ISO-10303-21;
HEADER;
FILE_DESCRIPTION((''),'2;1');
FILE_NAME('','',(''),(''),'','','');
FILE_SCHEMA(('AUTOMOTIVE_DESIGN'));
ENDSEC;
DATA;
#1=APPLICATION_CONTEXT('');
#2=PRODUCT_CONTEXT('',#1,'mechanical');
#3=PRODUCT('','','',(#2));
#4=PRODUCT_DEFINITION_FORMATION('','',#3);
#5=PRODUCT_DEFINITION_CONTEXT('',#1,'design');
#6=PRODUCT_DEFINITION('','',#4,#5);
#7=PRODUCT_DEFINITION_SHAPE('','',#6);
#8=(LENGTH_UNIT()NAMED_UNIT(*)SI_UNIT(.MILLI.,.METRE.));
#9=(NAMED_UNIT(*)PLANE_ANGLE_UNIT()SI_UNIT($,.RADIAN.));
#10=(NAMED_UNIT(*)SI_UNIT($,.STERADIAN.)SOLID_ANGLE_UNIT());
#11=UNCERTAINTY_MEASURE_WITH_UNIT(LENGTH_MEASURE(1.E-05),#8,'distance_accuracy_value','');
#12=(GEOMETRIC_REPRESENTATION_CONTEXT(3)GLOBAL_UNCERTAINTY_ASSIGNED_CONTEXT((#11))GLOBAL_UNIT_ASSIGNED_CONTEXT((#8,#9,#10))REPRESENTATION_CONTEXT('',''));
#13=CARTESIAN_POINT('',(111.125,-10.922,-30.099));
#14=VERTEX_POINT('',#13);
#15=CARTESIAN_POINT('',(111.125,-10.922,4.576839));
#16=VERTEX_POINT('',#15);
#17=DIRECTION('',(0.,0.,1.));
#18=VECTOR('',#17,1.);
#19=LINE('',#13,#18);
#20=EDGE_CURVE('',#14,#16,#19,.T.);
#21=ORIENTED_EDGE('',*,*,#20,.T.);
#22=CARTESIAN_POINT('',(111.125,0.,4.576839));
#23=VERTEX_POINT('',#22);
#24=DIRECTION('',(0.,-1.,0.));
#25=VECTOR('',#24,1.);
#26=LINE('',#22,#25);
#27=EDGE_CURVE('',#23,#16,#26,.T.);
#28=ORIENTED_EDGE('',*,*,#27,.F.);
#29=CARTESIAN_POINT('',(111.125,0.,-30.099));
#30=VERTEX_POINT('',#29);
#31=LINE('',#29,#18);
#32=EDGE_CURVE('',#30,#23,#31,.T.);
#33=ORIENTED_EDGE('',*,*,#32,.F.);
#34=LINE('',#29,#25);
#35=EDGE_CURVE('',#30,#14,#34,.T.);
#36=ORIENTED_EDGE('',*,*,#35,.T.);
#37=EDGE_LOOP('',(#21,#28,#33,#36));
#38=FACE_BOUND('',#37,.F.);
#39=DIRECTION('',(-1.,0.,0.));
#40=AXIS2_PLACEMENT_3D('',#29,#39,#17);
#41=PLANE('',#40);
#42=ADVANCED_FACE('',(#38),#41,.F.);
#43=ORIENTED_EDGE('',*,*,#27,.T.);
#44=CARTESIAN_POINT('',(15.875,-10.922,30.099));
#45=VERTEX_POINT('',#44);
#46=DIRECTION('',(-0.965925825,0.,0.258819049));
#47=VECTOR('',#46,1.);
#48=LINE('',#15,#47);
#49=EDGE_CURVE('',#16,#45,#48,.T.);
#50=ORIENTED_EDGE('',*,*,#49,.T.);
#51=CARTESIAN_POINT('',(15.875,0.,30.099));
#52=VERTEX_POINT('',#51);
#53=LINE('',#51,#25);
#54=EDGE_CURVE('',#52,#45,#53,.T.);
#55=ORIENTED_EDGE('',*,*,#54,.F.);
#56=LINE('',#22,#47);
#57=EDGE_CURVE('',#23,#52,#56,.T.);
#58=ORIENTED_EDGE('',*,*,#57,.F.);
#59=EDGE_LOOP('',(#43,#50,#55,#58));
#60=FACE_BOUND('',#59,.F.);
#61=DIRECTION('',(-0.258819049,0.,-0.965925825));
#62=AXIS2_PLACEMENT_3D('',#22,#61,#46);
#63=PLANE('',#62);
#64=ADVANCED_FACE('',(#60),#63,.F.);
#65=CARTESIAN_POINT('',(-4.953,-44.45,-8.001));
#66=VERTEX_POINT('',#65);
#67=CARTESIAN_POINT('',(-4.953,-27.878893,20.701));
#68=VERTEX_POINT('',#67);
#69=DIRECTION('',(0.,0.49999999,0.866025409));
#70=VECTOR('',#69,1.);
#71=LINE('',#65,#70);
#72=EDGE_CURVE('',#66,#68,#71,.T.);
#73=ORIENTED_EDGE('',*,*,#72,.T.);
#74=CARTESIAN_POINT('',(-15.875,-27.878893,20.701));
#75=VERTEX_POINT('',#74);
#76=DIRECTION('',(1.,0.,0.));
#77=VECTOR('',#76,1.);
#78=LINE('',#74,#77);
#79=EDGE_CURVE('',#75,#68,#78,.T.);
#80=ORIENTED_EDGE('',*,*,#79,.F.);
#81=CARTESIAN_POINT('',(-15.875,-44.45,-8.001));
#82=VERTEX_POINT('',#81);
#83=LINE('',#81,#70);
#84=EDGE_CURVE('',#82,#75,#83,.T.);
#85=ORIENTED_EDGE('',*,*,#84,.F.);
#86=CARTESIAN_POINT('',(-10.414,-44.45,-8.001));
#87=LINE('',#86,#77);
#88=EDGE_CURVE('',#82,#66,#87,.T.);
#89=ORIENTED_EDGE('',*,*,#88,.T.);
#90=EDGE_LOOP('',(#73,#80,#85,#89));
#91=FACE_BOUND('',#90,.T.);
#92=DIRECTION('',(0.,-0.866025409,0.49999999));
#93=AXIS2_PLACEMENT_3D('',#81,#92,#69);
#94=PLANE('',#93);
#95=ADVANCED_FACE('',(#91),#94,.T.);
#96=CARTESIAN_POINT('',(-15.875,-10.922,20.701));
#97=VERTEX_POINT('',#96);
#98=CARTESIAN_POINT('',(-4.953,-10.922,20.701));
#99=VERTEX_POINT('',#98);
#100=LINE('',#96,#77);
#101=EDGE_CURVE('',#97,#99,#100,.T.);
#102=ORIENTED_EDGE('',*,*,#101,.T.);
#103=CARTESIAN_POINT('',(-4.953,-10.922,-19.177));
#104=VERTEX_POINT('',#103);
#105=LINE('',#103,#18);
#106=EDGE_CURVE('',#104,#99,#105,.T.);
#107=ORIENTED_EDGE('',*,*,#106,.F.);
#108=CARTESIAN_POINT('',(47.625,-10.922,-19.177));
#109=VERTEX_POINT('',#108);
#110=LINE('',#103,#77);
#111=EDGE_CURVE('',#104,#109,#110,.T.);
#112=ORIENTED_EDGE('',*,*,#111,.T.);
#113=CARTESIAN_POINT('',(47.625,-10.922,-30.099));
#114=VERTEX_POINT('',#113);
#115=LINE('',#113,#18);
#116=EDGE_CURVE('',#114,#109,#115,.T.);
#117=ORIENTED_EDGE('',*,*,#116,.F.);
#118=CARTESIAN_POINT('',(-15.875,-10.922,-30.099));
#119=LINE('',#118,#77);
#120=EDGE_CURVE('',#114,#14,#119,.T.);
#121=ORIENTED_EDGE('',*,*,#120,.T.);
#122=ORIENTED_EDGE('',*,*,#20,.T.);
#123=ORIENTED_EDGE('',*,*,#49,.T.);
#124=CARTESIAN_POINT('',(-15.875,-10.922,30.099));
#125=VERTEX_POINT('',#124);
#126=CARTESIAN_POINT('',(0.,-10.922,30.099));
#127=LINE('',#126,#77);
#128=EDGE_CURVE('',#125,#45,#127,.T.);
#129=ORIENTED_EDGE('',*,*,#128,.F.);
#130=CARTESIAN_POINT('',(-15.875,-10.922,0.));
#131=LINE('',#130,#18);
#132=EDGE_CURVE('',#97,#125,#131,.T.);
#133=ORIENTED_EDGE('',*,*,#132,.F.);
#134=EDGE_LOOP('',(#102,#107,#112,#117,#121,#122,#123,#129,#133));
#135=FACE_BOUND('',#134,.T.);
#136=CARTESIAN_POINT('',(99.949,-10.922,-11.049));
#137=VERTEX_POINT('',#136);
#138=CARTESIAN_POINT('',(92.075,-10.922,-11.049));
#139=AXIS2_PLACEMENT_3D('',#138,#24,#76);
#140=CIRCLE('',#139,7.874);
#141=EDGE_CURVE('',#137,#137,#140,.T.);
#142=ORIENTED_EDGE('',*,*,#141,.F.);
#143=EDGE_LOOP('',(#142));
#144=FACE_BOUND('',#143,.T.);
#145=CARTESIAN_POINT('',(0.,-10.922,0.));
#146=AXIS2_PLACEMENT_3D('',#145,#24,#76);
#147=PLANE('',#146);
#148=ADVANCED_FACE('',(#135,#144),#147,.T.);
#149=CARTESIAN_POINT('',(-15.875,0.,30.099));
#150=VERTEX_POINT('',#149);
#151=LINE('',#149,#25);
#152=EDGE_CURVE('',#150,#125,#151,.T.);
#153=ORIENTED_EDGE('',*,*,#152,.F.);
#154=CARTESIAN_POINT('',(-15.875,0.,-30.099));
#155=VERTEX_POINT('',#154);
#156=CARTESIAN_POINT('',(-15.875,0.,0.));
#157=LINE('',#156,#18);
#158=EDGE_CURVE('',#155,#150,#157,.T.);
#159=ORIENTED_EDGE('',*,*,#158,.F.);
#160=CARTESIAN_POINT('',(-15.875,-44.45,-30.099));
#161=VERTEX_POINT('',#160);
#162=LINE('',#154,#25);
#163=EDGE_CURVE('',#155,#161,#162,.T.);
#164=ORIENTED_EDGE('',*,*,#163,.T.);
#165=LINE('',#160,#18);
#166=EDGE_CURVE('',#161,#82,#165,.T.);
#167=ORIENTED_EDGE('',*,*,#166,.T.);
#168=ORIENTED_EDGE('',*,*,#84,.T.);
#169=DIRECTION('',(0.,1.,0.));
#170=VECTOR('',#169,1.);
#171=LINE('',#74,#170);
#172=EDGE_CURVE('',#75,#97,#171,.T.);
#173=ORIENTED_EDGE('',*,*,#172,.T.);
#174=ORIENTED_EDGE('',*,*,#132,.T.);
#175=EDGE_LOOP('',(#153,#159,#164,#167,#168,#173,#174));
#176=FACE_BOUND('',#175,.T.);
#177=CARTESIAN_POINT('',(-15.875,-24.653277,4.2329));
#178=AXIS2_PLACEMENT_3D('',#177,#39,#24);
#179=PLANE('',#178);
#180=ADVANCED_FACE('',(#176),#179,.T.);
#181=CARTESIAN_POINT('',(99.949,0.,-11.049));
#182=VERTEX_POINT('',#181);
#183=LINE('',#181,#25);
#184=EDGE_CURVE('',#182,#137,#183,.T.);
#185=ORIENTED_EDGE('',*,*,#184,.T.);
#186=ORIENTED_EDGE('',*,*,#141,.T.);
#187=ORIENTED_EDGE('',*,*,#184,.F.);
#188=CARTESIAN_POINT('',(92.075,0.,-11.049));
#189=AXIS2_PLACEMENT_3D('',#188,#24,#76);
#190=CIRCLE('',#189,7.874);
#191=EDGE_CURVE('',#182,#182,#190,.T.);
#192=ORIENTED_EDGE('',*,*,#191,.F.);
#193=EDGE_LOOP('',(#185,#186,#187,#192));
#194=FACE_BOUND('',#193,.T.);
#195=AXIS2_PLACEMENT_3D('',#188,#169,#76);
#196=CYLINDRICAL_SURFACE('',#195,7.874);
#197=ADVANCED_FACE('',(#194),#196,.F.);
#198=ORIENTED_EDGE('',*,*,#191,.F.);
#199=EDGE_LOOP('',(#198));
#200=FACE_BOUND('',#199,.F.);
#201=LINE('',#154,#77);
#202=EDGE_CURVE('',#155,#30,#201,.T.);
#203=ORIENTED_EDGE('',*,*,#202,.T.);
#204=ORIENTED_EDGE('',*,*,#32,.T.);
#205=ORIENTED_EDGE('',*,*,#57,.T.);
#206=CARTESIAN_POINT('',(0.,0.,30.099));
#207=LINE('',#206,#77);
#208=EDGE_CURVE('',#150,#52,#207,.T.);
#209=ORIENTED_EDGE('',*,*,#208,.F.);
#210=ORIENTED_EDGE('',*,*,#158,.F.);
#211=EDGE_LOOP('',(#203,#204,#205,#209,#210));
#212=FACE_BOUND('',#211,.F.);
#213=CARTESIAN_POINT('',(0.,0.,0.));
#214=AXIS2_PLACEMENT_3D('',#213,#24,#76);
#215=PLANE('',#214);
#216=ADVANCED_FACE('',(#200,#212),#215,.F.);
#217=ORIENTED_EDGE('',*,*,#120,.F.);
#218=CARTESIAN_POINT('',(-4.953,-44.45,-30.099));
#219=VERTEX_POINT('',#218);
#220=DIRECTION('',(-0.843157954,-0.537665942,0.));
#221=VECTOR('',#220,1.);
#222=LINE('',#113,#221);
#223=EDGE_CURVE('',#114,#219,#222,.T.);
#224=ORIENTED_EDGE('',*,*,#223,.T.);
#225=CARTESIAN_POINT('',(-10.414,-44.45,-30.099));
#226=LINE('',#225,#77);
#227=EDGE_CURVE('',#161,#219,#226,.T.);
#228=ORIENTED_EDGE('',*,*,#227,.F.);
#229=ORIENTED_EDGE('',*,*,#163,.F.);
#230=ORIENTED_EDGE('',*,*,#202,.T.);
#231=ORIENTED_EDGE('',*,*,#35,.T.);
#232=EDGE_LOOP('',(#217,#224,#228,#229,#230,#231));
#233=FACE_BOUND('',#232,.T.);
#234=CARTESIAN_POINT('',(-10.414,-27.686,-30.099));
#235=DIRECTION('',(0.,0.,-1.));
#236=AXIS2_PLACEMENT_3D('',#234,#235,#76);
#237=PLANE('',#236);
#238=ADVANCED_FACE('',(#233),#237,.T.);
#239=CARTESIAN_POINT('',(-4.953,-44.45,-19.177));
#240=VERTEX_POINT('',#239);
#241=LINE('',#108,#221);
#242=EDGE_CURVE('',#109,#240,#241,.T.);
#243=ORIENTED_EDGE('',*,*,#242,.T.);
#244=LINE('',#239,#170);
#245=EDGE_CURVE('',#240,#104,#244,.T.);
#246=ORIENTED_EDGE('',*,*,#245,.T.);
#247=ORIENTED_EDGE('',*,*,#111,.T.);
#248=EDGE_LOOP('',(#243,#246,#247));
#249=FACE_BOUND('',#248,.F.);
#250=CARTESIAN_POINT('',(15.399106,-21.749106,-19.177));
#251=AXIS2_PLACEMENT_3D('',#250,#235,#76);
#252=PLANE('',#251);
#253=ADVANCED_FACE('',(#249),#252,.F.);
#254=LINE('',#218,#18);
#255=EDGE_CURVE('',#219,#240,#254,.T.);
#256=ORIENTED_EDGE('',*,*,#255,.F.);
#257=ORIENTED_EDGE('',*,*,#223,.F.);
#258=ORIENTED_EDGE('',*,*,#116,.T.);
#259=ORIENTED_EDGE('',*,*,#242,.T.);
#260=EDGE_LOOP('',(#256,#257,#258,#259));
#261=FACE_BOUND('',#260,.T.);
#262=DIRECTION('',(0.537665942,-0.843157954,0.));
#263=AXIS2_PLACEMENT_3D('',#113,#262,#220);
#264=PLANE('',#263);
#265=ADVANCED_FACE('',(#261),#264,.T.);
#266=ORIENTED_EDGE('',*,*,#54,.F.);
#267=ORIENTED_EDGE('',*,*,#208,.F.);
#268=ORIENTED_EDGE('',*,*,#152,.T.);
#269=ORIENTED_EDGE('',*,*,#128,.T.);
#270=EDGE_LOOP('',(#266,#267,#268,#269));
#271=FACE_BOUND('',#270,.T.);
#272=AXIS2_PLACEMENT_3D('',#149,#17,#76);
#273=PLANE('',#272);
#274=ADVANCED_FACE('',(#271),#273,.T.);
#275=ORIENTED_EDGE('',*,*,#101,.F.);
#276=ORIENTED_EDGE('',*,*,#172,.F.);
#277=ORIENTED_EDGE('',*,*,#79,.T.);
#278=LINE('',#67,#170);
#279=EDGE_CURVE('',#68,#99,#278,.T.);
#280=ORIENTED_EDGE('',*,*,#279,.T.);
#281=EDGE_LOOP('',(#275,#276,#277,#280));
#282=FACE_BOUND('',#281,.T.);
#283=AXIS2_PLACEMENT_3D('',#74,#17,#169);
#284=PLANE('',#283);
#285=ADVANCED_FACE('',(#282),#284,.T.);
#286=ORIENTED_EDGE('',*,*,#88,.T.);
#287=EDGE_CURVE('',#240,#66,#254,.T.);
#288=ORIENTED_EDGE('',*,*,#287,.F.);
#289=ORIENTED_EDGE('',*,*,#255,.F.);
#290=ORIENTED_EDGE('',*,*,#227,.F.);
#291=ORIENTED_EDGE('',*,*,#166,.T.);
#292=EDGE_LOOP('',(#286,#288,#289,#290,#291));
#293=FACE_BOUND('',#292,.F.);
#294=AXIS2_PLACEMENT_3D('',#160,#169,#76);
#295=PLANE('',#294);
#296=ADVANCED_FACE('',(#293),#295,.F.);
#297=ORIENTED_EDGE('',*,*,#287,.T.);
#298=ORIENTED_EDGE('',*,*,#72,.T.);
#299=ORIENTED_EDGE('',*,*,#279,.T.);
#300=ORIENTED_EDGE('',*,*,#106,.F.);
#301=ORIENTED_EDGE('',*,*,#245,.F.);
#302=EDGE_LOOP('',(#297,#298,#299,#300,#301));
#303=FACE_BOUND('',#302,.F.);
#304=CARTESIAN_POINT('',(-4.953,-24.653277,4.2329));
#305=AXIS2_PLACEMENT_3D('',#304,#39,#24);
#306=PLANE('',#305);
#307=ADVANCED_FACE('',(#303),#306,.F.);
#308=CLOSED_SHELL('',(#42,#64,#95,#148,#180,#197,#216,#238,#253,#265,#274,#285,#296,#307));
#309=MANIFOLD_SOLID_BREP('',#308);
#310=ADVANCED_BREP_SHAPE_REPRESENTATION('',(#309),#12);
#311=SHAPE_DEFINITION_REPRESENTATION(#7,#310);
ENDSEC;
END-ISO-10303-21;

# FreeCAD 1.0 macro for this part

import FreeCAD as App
import Part
import Sketcher
from FreeCAD import Vector
Q = App.Units.Quantity

doc = App.newDocument("Part")
body = doc.addObject("PartDesign::Body", "Body")

sketch1 = doc.addObject("Sketcher::SketchObject", "Sketch")
body.addObject(sketch1)
sketch1.AttachmentSupport = (doc.XZ_Plane, [""])
sketch1.MapMode = "FlatFace"
sketch1.addGeometry(Part.LineSegment(Vector(-16, 30, 0), Vector(-16, -30, 0)), False)
sketch1.addGeometry(Part.LineSegment(Vector(-16, -30, 0), Vector(111, -30, 0)), False)
sketch1.addGeometry(Part.LineSegment(Vector(111, -30, 0), Vector(111, 5, 0)), False)
sketch1.addGeometry(Part.LineSegment(Vector(111, 5, 0), Vector(16, 30, 0)), False)
sketch1.addGeometry(Part.LineSegment(Vector(16, 30, 0), Vector(-16, 30, 0)), False)
sketch1.addGeometry(Part.Circle(Vector(92, -11, 0), Vector(0, 0, 1), 8), False)
sketch1.addConstraint(Sketcher.Constraint("Coincident", 0, 2, 1, 1))
sketch1.addConstraint(Sketcher.Constraint("Coincident", 1, 2, 2, 1))
sketch1.addConstraint(Sketcher.Constraint("Coincident", 2, 2, 3, 1))
sketch1.addConstraint(Sketcher.Constraint("Coincident", 3, 2, 4, 1))
sketch1.addConstraint(Sketcher.Constraint("Coincident", 4, 2, 0, 1))
sketch1.addConstraint(Sketcher.Constraint("Vertical", 0))
sketch1.addConstraint(Sketcher.Constraint("Horizontal", 1))
sketch1.addConstraint(Sketcher.Constraint("Vertical", 2))
sketch1.addConstraint(Sketcher.Constraint("Horizontal", 4))
sketch1.addConstraint(Sketcher.Constraint("Symmetric", 0, 2, 3, 2, -1, 1))
sketch1.addConstraint(Sketcher.Constraint("Diameter", 5, Q("0.62 in")))
sketch1.addConstraint(Sketcher.Constraint("DistanceX", 1, 1, 1, 2, Q("5 in")))
sketch1.addConstraint(Sketcher.Constraint("Angle", 3, Q("165 deg")))
sketch1.addConstraint(Sketcher.Constraint("DistanceX", 3, 2, 5, 3, Q("3 in")))
sketch1.addConstraint(Sketcher.Constraint("DistanceX", 4, 2, 4, 1, Q("1.25 in")))
sketch1.addConstraint(Sketcher.Constraint("DistanceY", 0, 2, 0, 1, Q("2.37 in")))
sketch1.addConstraint(Sketcher.Constraint("DistanceY", 0, 2, 5, 3, Q("0.75 in")))
pad1 = doc.addObject("PartDesign::Pad", "Pad")
body.addObject(pad1)
pad1.Profile = sketch1
pad1.Length = Q("0.43 in")

sketch2 = doc.addObject("Sketcher::SketchObject", "Sketch001")
body.addObject(sketch2)
sketch2.AttachmentSupport = (doc.XY_Plane, [""])
sketch2.MapMode = "FlatFace"
sketch2.AttachmentOffset = App.Placement(Vector(0, 0, -1.185 * 25.4), App.Rotation())
sketch2.addGeometry(Part.LineSegment(Vector(-5, -44, 0), Vector(-5, -11, 0)), False)
sketch2.addGeometry(Part.LineSegment(Vector(-5, -11, 0), Vector(48, -11, 0)), False)
sketch2.addGeometry(Part.LineSegment(Vector(48, -11, 0), Vector(-5, -44, 0)), False)
sketch2.addConstraint(Sketcher.Constraint("Coincident", 0, 2, 1, 1))
sketch2.addConstraint(Sketcher.Constraint("Coincident", 1, 2, 2, 1))
sketch2.addConstraint(Sketcher.Constraint("Coincident", 2, 2, 0, 1))
sketch2.addConstraint(Sketcher.Constraint("Vertical", 0))
sketch2.addConstraint(Sketcher.Constraint("Horizontal", 1))
sketch2.addConstraint(Sketcher.Constraint("DistanceX", 1, 1, 1, 2, Q("2.07 in")))
sketch2.addConstraint(Sketcher.Constraint("DistanceY", 0, 1, 0, 2, Q("1.32 in")))
sketch2.addConstraint(Sketcher.Constraint("DistanceY", 0, 2, -1, 1, Q("0.43 in")))
sketch2.addConstraint(Sketcher.Constraint("DistanceX", 0, 2, -1, 1, Q("0.195 in")))
pad2 = doc.addObject("PartDesign::Pad", "Pad001")
body.addObject(pad2)
pad2.Profile = sketch2
pad2.Length = Q("0.43 in")

sketch3 = doc.addObject("Sketcher::SketchObject", "Sketch002")
body.addObject(sketch3)
sketch3.AttachmentSupport = (doc.XY_Plane, [""])
sketch3.MapMode = "FlatFace"
sketch3.AttachmentOffset = App.Placement(Vector(0, 0, -1.185 * 25.4), App.Rotation())
sketch3.addGeometry(Part.LineSegment(Vector(-16, -44, 0), Vector(-16, -11, 0)), False)
sketch3.addGeometry(Part.LineSegment(Vector(-16, -11, 0), Vector(-5, -11, 0)), False)
sketch3.addGeometry(Part.LineSegment(Vector(-5, -11, 0), Vector(-5, -44, 0)), False)
sketch3.addGeometry(Part.LineSegment(Vector(-5, -44, 0), Vector(-16, -44, 0)), False)
sketch3.addConstraint(Sketcher.Constraint("Coincident", 0, 2, 1, 1))
sketch3.addConstraint(Sketcher.Constraint("Coincident", 1, 2, 2, 1))
sketch3.addConstraint(Sketcher.Constraint("Coincident", 2, 2, 3, 1))
sketch3.addConstraint(Sketcher.Constraint("Coincident", 3, 2, 0, 1))
sketch3.addConstraint(Sketcher.Constraint("Vertical", 0))
sketch3.addConstraint(Sketcher.Constraint("Horizontal", 1))
sketch3.addConstraint(Sketcher.Constraint("Vertical", 2))
sketch3.addConstraint(Sketcher.Constraint("Horizontal", 3))
sketch3.addConstraint(Sketcher.Constraint("DistanceX", 1, 1, 1, 2, Q("0.43 in")))
sketch3.addConstraint(Sketcher.Constraint("DistanceY", 0, 1, 0, 2, Q("1.32 in")))
sketch3.addConstraint(Sketcher.Constraint("DistanceY", 0, 2, -1, 1, Q("0.43 in")))
sketch3.addConstraint(Sketcher.Constraint("DistanceX", 0, 2, -1, 1, Q("0.625 in")))
pad3 = doc.addObject("PartDesign::Pad", "Pad002")
body.addObject(pad3)
pad3.Profile = sketch3
pad3.Length = Q("0.87 in")

sketch4 = doc.addObject("Sketcher::SketchObject", "Sketch003")
body.addObject(sketch4)
sketch4.AttachmentSupport = (doc.YZ_Plane, [""])
sketch4.MapMode = "FlatFace"
sketch4.AttachmentOffset = App.Placement(Vector(0, 0, -0.625 * 25.4), App.Rotation())
sketch4.addGeometry(Part.LineSegment(Vector(-11, -8, 0), Vector(-44, -8, 0)), False)
sketch4.addGeometry(Part.LineSegment(Vector(-44, -8, 0), Vector(-28, 21, 0)), False)
sketch4.addGeometry(Part.LineSegment(Vector(-28, 21, 0), Vector(-11, 21, 0)), False)
sketch4.addGeometry(Part.LineSegment(Vector(-11, 21, 0), Vector(-11, -8, 0)), False)
sketch4.addConstraint(Sketcher.Constraint("Coincident", 0, 2, 1, 1))
sketch4.addConstraint(Sketcher.Constraint("Coincident", 1, 2, 2, 1))
sketch4.addConstraint(Sketcher.Constraint("Coincident", 2, 2, 3, 1))
sketch4.addConstraint(Sketcher.Constraint("Coincident", 3, 2, 0, 1))
sketch4.addConstraint(Sketcher.Constraint("Horizontal", 0))
sketch4.addConstraint(Sketcher.Constraint("Horizontal", 2))
sketch4.addConstraint(Sketcher.Constraint("Vertical", 3))
sketch4.addConstraint(Sketcher.Constraint("Angle", 1, Q("60.000001 deg")))
sketch4.addConstraint(Sketcher.Constraint("DistanceX", 0, 2, 0, 1, Q("1.32 in")))
sketch4.addConstraint(Sketcher.Constraint("DistanceY", 3, 2, 3, 1, Q("1.13 in")))
sketch4.addConstraint(Sketcher.Constraint("DistanceX", 0, 2, -1, 1, Q("1.75 in")))
sketch4.addConstraint(Sketcher.Constraint("DistanceY", 0, 2, -1, 1, Q("0.315 in")))
pad4 = doc.addObject("PartDesign::Pad", "Pad003")
body.addObject(pad4)
pad4.Profile = sketch4
pad4.Length = Q("0.43 in")

doc.recompute()
